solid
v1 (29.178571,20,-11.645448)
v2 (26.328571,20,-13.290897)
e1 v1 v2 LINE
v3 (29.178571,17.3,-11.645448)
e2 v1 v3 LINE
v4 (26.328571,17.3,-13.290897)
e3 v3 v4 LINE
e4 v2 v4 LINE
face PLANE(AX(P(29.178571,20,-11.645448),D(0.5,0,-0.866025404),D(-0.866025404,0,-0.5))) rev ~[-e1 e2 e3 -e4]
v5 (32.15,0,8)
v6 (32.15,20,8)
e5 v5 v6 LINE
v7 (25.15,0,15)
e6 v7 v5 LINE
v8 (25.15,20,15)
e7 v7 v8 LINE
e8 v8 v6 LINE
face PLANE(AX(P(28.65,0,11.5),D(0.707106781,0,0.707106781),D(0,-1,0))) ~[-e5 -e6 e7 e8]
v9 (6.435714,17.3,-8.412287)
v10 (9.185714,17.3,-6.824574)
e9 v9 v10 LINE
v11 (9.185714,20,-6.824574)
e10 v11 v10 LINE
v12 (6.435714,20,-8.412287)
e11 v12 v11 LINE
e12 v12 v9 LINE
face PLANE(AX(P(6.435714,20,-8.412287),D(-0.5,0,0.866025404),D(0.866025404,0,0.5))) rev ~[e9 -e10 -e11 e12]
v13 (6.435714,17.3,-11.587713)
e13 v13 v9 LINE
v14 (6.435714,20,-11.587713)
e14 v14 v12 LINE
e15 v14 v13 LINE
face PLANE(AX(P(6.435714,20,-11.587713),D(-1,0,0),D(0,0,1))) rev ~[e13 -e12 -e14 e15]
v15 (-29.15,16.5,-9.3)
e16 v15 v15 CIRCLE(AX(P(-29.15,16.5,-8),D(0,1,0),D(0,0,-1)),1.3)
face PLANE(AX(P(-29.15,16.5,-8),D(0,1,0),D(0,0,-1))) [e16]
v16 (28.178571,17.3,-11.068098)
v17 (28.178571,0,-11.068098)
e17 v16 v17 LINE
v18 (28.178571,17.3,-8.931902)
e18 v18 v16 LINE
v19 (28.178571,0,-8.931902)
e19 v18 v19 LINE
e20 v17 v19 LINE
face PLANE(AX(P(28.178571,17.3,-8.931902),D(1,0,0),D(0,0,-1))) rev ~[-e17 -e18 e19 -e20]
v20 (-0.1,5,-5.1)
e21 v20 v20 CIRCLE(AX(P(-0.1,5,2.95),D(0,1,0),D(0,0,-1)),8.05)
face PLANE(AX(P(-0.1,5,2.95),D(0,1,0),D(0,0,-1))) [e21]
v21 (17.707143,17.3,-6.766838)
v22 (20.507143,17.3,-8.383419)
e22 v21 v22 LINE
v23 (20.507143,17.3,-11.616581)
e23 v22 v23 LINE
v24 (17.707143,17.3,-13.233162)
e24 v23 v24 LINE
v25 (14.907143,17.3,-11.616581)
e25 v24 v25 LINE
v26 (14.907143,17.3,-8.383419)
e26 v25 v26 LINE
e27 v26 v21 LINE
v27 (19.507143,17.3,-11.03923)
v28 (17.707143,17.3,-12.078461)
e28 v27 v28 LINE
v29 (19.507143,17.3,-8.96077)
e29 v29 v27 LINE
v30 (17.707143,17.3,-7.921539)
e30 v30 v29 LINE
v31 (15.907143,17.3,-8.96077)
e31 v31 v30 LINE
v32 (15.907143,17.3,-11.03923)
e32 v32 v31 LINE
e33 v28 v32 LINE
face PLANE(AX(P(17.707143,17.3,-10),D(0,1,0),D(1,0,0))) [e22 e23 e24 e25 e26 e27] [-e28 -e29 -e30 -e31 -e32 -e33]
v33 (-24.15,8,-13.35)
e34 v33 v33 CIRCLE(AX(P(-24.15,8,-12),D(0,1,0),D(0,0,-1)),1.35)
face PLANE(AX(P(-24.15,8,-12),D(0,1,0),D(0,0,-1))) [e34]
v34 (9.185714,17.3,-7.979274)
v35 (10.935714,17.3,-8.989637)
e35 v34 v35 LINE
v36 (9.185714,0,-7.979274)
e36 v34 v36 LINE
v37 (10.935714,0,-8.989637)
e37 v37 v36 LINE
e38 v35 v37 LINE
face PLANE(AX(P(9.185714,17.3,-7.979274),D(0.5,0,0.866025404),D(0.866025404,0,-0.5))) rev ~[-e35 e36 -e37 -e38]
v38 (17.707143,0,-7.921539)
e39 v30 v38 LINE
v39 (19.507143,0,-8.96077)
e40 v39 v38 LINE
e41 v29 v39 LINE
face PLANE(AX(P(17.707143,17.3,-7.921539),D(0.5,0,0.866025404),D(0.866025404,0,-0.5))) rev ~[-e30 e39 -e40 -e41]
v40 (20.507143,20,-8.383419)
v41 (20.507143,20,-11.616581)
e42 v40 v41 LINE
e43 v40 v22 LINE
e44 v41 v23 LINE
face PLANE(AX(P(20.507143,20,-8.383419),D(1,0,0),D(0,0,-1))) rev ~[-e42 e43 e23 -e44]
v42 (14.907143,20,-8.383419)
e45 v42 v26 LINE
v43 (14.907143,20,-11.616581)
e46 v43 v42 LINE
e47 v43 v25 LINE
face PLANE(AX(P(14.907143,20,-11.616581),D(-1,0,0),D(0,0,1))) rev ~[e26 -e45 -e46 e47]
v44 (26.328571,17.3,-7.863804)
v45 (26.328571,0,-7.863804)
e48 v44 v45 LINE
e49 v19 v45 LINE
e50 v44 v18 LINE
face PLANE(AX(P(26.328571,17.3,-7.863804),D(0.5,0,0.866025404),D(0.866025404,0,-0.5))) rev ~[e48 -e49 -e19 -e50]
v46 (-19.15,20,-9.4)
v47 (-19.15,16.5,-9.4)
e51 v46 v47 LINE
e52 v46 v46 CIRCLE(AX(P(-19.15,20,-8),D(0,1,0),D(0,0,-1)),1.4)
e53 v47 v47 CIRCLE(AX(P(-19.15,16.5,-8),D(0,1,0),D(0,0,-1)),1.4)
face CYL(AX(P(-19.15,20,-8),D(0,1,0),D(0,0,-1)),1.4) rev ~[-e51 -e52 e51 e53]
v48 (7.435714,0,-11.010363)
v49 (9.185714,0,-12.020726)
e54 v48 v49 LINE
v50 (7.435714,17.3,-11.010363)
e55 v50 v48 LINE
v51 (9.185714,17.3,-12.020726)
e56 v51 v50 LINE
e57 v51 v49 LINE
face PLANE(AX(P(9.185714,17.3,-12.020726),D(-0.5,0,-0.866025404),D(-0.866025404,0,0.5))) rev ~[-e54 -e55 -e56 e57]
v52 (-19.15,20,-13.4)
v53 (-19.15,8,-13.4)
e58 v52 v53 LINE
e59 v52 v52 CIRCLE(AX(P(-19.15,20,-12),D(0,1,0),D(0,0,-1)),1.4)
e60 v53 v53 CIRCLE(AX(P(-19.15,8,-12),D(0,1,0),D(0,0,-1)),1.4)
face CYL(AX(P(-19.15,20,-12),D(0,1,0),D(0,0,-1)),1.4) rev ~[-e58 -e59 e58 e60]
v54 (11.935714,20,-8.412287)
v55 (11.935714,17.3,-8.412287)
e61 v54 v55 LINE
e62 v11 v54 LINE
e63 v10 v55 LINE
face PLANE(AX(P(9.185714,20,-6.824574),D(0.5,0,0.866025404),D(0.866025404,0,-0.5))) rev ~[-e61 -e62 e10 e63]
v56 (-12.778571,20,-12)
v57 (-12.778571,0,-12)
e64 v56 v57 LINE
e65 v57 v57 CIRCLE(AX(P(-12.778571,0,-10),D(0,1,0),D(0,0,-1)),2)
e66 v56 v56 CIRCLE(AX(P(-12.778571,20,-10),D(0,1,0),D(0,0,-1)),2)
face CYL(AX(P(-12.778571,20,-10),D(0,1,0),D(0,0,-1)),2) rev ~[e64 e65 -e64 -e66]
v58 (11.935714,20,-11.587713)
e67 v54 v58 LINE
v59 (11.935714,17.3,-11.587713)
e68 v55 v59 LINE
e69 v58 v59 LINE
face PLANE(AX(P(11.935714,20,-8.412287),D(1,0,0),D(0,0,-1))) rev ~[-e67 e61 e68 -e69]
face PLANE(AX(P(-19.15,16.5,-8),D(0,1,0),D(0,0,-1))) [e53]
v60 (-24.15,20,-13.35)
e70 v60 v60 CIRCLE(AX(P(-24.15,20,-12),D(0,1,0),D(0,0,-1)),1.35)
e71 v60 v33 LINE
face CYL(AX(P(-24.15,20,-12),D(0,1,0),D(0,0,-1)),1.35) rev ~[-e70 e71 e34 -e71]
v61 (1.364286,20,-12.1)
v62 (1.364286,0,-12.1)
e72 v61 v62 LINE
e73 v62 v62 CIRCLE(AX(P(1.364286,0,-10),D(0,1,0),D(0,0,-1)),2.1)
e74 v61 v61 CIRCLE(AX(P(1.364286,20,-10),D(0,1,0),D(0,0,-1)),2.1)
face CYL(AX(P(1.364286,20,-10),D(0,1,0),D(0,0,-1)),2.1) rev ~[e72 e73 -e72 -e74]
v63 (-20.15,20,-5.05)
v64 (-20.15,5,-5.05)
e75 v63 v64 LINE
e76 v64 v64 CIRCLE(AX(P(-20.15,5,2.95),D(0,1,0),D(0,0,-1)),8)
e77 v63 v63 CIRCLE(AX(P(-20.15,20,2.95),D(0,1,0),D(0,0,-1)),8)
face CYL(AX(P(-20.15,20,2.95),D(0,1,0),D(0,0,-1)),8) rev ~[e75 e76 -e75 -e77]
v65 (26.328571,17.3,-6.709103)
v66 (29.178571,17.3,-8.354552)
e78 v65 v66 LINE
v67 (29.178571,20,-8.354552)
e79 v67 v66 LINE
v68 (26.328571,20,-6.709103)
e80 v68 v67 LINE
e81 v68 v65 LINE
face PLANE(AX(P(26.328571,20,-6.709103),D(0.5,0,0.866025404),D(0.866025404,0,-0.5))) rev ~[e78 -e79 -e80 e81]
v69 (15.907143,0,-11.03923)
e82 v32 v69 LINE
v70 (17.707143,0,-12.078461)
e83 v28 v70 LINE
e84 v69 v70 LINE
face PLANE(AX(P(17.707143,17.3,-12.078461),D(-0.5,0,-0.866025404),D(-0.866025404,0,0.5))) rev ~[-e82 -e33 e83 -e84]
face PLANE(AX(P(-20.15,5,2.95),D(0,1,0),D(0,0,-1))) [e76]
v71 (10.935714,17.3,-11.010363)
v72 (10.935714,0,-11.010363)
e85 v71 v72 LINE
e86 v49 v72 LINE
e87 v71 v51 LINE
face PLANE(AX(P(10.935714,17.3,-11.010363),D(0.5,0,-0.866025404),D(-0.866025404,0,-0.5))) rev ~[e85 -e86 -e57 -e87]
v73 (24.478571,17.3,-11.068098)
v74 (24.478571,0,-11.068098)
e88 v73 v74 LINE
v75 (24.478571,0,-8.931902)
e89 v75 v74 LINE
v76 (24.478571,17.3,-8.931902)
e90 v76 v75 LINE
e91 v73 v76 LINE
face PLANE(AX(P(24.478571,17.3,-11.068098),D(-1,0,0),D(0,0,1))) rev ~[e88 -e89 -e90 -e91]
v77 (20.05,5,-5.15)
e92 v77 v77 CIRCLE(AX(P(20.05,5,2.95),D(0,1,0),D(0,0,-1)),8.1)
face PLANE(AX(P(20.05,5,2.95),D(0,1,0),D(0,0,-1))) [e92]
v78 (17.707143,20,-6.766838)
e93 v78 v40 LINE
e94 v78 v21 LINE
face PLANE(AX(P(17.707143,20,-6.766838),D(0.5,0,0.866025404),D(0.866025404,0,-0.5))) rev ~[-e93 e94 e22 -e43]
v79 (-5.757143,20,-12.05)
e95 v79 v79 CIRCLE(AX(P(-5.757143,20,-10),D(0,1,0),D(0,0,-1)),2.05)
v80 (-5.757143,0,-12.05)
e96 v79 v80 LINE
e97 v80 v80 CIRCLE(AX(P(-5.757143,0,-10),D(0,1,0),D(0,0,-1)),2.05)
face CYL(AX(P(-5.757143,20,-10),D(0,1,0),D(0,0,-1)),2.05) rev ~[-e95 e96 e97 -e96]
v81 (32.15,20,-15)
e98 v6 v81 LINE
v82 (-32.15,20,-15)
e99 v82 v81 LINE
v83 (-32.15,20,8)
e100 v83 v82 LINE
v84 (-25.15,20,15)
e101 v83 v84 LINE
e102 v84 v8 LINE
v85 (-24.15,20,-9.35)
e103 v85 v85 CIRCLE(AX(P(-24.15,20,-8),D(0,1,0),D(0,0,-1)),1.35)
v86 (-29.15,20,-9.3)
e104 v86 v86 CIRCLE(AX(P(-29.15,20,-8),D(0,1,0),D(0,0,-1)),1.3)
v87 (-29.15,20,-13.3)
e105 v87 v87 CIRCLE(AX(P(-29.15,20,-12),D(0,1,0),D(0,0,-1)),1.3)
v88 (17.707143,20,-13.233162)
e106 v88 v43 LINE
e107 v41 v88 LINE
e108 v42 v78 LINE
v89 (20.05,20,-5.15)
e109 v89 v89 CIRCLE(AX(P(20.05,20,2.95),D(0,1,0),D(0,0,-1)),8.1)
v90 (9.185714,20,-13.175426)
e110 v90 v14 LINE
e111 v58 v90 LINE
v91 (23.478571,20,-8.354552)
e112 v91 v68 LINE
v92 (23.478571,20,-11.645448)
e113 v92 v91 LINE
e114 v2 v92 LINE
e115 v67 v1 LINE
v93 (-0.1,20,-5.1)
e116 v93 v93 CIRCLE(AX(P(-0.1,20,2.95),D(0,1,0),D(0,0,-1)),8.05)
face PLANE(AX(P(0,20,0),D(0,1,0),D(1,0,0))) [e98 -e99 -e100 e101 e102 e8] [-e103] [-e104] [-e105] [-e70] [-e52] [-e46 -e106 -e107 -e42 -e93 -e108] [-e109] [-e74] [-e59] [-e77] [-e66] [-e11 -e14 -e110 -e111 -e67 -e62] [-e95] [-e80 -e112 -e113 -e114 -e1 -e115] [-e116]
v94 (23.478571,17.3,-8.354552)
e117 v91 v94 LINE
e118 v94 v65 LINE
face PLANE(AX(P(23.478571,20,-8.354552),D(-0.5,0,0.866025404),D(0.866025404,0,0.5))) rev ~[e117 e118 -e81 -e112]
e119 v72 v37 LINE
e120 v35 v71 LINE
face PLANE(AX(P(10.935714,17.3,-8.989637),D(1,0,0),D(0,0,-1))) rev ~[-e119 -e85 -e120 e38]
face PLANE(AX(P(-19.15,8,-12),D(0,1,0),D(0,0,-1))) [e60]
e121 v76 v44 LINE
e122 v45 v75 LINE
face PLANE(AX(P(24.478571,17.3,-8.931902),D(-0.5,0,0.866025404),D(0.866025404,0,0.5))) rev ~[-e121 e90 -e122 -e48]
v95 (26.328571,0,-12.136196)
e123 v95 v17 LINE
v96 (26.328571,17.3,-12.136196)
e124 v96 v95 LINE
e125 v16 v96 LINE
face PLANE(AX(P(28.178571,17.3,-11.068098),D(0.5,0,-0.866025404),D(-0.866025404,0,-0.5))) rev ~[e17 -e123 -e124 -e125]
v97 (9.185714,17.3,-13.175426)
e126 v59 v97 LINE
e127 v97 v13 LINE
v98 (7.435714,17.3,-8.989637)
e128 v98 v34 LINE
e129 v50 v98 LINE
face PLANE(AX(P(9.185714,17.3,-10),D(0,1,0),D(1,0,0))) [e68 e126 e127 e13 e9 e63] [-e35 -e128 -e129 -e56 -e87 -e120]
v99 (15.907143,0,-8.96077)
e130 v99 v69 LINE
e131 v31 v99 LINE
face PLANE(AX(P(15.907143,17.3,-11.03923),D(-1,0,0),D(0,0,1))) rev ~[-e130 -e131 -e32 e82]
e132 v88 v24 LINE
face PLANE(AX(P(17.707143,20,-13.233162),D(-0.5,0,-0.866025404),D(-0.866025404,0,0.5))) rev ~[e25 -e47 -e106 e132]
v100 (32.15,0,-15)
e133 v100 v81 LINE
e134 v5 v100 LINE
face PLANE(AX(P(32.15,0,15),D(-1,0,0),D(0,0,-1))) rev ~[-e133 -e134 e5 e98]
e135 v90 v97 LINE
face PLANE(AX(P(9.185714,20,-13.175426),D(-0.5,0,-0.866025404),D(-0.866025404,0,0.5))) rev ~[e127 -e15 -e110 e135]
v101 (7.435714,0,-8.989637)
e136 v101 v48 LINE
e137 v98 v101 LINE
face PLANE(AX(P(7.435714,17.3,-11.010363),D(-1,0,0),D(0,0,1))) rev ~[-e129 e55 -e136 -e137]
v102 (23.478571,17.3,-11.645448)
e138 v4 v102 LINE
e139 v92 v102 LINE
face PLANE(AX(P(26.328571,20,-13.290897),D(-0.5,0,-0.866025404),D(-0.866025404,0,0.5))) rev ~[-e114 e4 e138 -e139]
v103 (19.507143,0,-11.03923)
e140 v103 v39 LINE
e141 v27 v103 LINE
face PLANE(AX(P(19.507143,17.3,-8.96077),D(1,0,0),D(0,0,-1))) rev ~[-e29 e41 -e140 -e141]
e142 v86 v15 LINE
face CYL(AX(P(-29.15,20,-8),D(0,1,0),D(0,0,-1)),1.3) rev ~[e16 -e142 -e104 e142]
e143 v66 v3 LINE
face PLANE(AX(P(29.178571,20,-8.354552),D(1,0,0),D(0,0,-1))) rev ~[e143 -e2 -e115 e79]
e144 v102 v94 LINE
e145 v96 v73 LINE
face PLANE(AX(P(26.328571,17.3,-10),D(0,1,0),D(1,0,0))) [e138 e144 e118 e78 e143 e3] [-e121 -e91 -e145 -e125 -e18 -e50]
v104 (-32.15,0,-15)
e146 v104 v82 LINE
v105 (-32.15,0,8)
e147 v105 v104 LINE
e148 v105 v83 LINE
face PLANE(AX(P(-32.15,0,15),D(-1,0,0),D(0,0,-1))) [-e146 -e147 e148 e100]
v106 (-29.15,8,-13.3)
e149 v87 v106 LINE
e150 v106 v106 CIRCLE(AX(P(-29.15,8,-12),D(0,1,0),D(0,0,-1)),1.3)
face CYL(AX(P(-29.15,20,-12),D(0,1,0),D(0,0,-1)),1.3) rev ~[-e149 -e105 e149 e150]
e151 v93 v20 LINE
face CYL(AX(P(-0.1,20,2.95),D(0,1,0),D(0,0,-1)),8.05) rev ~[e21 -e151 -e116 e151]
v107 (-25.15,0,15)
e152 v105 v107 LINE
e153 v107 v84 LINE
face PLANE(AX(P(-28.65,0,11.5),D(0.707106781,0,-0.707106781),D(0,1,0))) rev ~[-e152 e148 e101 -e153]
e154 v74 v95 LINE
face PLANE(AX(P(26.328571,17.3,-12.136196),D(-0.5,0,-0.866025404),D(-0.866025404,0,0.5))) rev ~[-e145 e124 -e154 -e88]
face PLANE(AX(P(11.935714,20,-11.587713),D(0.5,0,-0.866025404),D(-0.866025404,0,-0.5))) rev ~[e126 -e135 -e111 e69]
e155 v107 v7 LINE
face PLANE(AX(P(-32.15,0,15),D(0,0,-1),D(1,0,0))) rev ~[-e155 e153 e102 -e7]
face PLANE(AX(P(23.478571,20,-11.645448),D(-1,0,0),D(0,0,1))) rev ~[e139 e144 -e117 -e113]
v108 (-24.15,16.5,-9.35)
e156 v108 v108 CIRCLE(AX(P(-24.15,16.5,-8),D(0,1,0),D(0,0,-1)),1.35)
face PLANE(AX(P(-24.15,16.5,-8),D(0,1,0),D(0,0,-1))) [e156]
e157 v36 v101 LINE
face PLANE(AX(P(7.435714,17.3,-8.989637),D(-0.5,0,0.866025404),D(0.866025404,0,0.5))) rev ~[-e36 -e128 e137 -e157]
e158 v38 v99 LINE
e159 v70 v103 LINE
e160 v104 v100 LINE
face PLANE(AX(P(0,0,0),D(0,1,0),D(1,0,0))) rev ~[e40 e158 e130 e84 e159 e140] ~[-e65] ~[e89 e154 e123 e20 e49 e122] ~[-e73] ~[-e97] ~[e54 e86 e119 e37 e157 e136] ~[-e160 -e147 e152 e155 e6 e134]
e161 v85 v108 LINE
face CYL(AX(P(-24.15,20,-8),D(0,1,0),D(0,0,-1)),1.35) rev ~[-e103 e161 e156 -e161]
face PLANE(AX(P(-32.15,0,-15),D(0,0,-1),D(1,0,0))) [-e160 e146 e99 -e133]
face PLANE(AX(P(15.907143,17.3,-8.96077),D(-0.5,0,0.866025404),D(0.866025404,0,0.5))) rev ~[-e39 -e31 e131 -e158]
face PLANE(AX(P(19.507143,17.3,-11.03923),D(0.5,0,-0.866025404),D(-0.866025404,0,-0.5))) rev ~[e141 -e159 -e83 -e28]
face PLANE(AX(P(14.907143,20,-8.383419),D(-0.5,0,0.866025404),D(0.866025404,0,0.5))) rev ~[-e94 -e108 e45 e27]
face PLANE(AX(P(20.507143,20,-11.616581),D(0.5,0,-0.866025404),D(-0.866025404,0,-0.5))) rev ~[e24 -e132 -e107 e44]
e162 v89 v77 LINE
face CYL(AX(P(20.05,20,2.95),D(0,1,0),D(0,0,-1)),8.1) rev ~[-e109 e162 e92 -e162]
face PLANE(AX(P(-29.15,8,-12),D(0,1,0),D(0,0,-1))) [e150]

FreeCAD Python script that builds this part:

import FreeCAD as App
import Part
import Sketcher
from FreeCAD import Vector
Q = App.Units.Quantity


def edges_at(feature, points):
    """Names of the edges that pass closest to the given points."""
    edges = feature.Shape.Edges
    near = lambda p: min(range(len(edges)), key=lambda i: edges[i].distToShape(Part.Vertex(*p))[0])
    return sorted({f"Edge{near(p) + 1}" for p in points})

doc = App.newDocument("Part")
params = doc.addObject("Spreadsheet::Sheet", "Params")
for row, (alias, value) in enumerate([
    ("sketch1_height", "30 mm"),
    ("sketch1_width", "64.3 mm"),
    ("pad1_length", "20 mm"),
    ("sketch2_diameter", "16 mm"),
    ("sketch2_diameter2", "16.1 mm"),
    ("sketch2_diameter3", "16.2 mm"),
    ("pocket1_length", "15 mm"),
    ("sketch3_diameter", "2.7 mm"),
    ("sketch3_diameter2", "2.8 mm"),
    ("sketch3_diameter3", "2.6 mm"),
    ("pocket2_length", "12 mm"),
    ("pocket3_length", "2.7 mm"),
    ("sketch5_diameter", "4 mm"),
    ("sketch5_diameter2", "4.1 mm"),
    ("sketch5_diameter3", "4.2 mm"),
    ("pocket4_length", "20 mm"),
    ("chamfer_size", "7 mm"),
    ("sketch9_diameter", "2.7 mm"),
    ("sketch9_diameter2", "2.6 mm"),
    ("sketch9_diameter3", "2.8 mm"),
    ("pocket8_length", "3.5 mm"),
], start=1):
    params.set(f"A{row}", alias)
    params.set(f"B{row}", "=" + value)
    params.setAlias(f"B{row}", alias)

body = doc.addObject("PartDesign::Body", "Body")

# Sketch on XZ plane
sketch1 = doc.addObject("Sketcher::SketchObject", "Sketch")
body.addObject(sketch1)
sketch1.AttachmentSupport = (doc.XZ_Plane, [""])
sketch1.MapMode = "FlatFace"
sketch1.addGeometry(Part.LineSegment(Vector(-32, -15, 0), Vector(-32, 15, 0)), False)
sketch1.addGeometry(Part.LineSegment(Vector(-32, 15, 0), Vector(32, 15, 0)), False)
sketch1.addGeometry(Part.LineSegment(Vector(32, 15, 0), Vector(32, -15, 0)), False)
sketch1.addGeometry(Part.LineSegment(Vector(32, -15, 0), Vector(-32, -15, 0)), False)
sketch1.addConstraint(Sketcher.Constraint("Coincident", 0, 2, 1, 1))
sketch1.addConstraint(Sketcher.Constraint("Coincident", 1, 2, 2, 1))
sketch1.addConstraint(Sketcher.Constraint("Coincident", 2, 2, 3, 1))
sketch1.addConstraint(Sketcher.Constraint("Coincident", 3, 2, 0, 1))
sketch1.addConstraint(Sketcher.Constraint("Vertical", 0))
sketch1.addConstraint(Sketcher.Constraint("Horizontal", 1))
sketch1.addConstraint(Sketcher.Constraint("Vertical", 2))
sketch1.addConstraint(Sketcher.Constraint("Horizontal", 3))
sketch1.addConstraint(Sketcher.Constraint("Symmetric", 0, 2, 2, 2, -1, 1))
sketch1.addConstraint(Sketcher.Constraint("DistanceY", 0, 1, 0, 2, Q("30 mm")))
sketch1.addConstraint(Sketcher.Constraint("DistanceX", 1, 1, 1, 2, Q("64.3 mm")))
sketch1.setExpression("Constraints[9]", "Params.sketch1_height")
sketch1.setExpression("Constraints[10]", "Params.sketch1_width")
pad1 = doc.addObject("PartDesign::Pad", "Pad")
body.addObject(pad1)
pad1.Profile = sketch1
pad1.setExpression("Length", "Params.pad1_length")
pad1.Reversed = True

# Sketch on XZ plane
sketch2 = doc.addObject("Sketcher::SketchObject", "Sketch001")
body.addObject(sketch2)
sketch2.AttachmentSupport = (doc.XZ_Plane, [""])
sketch2.MapMode = "FlatFace"
sketch2.AttachmentOffset = App.Placement(Vector(0, 0, -20), App.Rotation())
sketch2.addGeometry(Part.Circle(Vector(0, 3, 0), Vector(0, 0, 1), 8), False)
sketch2.addGeometry(Part.Circle(Vector(20, 3, 0), Vector(0, 0, 1), 8), False)
sketch2.addGeometry(Part.Circle(Vector(-20, 3, 0), Vector(0, 0, 1), 8), False)
sketch2.addConstraint(Sketcher.Constraint("Horizontal", 0, 3, 1, 3))
sketch2.addConstraint(Sketcher.Constraint("Horizontal", 1, 3, 2, 3))
sketch2.addConstraint(Sketcher.Constraint("Diameter", 2, Q("16 mm")))
sketch2.addConstraint(Sketcher.Constraint("Diameter", 0, Q("16.1 mm")))
sketch2.addConstraint(Sketcher.Constraint("Diameter", 1, Q("16.2 mm")))
sketch2.addConstraint(Sketcher.Constraint("DistanceX", 0, 3, -1, 1, Q("0.1 mm")))
sketch2.addConstraint(Sketcher.Constraint("DistanceX", 2, 3, 1, 3, Q("40.2 mm")))
sketch2.addConstraint(Sketcher.Constraint("DistanceY", -1, 1, 0, 3, Q("2.95 mm")))
sketch2.addConstraint(Sketcher.Constraint("DistanceX", -1, 1, 1, 3, Q("20.05 mm")))
sketch2.setExpression("Constraints[2]", "Params.sketch2_diameter")
sketch2.setExpression("Constraints[3]", "Params.sketch2_diameter2")
sketch2.setExpression("Constraints[4]", "Params.sketch2_diameter3")
pocket1 = doc.addObject("PartDesign::Pocket", "Pocket")
body.addObject(pocket1)
pocket1.Profile = sketch2
pocket1.setExpression("Length", "Params.pocket1_length")
pocket1.Reversed = True

# Sketch on XZ plane
sketch3 = doc.addObject("Sketcher::SketchObject", "Sketch002")
body.addObject(sketch3)
sketch3.AttachmentSupport = (doc.XZ_Plane, [""])
sketch3.MapMode = "FlatFace"
sketch3.AttachmentOffset = App.Placement(Vector(0, 0, -20), App.Rotation())
sketch3.addGeometry(Part.Circle(Vector(-24.1, -12, 0), Vector(0, 0, 1), 1.4), False)
sketch3.addGeometry(Part.Circle(Vector(-19.1, -12, 0), Vector(0, 0, 1), 1.4), False)
sketch3.addGeometry(Part.Circle(Vector(-29.1, -12, 0), Vector(0, 0, 1), 1.3), False)
sketch3.addConstraint(Sketcher.Constraint("Horizontal", 0, 3, 1, 3))
sketch3.addConstraint(Sketcher.Constraint("Horizontal", 1, 3, 2, 3))
sketch3.addConstraint(Sketcher.Constraint("Diameter", 0, Q("2.7 mm")))
sketch3.addConstraint(Sketcher.Constraint("Diameter", 1, Q("2.8 mm")))
sketch3.addConstraint(Sketcher.Constraint("Diameter", 2, Q("2.6 mm")))
sketch3.addConstraint(Sketcher.Constraint("DistanceY", 0, 3, -1, 1, Q("12 mm")))
sketch3.addConstraint(Sketcher.Constraint("DistanceX", 0, 3, 1, 3, Q("5 mm")))
sketch3.addConstraint(Sketcher.Constraint("DistanceX", 2, 3, 0, 3, Q("5 mm")))
sketch3.addConstraint(Sketcher.Constraint("DistanceX", 0, 3, -1, 1, Q("24.15 mm")))
sketch3.setExpression("Constraints[2]", "Params.sketch3_diameter")
sketch3.setExpression("Constraints[3]", "Params.sketch3_diameter2")
sketch3.setExpression("Constraints[4]", "Params.sketch3_diameter3")
pocket2 = doc.addObject("PartDesign::Pocket", "Pocket001")
body.addObject(pocket2)
pocket2.Profile = sketch3
pocket2.setExpression("Length", "Params.pocket2_length")
pocket2.Reversed = True

# Sketch on XZ plane
sketch4 = doc.addObject("Sketcher::SketchObject", "Sketch003")
body.addObject(sketch4)
sketch4.AttachmentSupport = (doc.XZ_Plane, [""])
sketch4.MapMode = "FlatFace"
sketch4.AttachmentOffset = App.Placement(Vector(0, 0, -20), App.Rotation())
sketch4.addGeometry(Part.LineSegment(Vector(9.2, -6.8, 0), Vector(11.9, -8.4, 0)), False)
sketch4.addGeometry(Part.LineSegment(Vector(11.9, -8.4, 0), Vector(11.9, -11.6, 0)), False)
sketch4.addGeometry(Part.LineSegment(Vector(11.9, -11.6, 0), Vector(9.2, -13.2, 0)), False)
sketch4.addGeometry(Part.LineSegment(Vector(9.2, -13.2, 0), Vector(6.4, -11.6, 0)), False)
sketch4.addGeometry(Part.LineSegment(Vector(6.4, -11.6, 0), Vector(6.4, -8.4, 0)), False)
sketch4.addGeometry(Part.LineSegment(Vector(6.4, -8.4, 0), Vector(9.2, -6.8, 0)), False)
sketch4.addGeometry(Part.LineSegment(Vector(17.7, -6.8, 0), Vector(20.5, -8.4, 0)), False)
sketch4.addGeometry(Part.LineSegment(Vector(20.5, -8.4, 0), Vector(20.5, -11.6, 0)), False)
sketch4.addGeometry(Part.LineSegment(Vector(20.5, -11.6, 0), Vector(17.7, -13.2, 0)), False)
sketch4.addGeometry(Part.LineSegment(Vector(17.7, -13.2, 0), Vector(14.9, -11.6, 0)), False)
sketch4.addGeometry(Part.LineSegment(Vector(14.9, -11.6, 0), Vector(14.9, -8.4, 0)), False)
sketch4.addGeometry(Part.LineSegment(Vector(14.9, -8.4, 0), Vector(17.7, -6.8, 0)), False)
sketch4.addGeometry(Part.LineSegment(Vector(26.3, -6.7, 0), Vector(29.2, -8.4, 0)), False)
sketch4.addGeometry(Part.LineSegment(Vector(29.2, -8.4, 0), Vector(29.2, -11.6, 0)), False)
sketch4.addGeometry(Part.LineSegment(Vector(29.2, -11.6, 0), Vector(26.3, -13.3, 0)), False)
sketch4.addGeometry(Part.LineSegment(Vector(26.3, -13.3, 0), Vector(23.5, -11.6, 0)), False)
sketch4.addGeometry(Part.LineSegment(Vector(23.5, -11.6, 0), Vector(23.5, -8.4, 0)), False)
sketch4.addGeometry(Part.LineSegment(Vector(23.5, -8.4, 0), Vector(26.3, -6.7, 0)), False)
sketch4.addConstraint(Sketcher.Constraint("Coincident", 0, 2, 1, 1))
sketch4.addConstraint(Sketcher.Constraint("Coincident", 1, 2, 2, 1))
sketch4.addConstraint(Sketcher.Constraint("Coincident", 2, 2, 3, 1))
sketch4.addConstraint(Sketcher.Constraint("Coincident", 3, 2, 4, 1))
sketch4.addConstraint(Sketcher.Constraint("Coincident", 4, 2, 5, 1))
sketch4.addConstraint(Sketcher.Constraint("Coincident", 5, 2, 0, 1))
sketch4.addConstraint(Sketcher.Constraint("Coincident", 6, 2, 7, 1))
sketch4.addConstraint(Sketcher.Constraint("Coincident", 7, 2, 8, 1))
sketch4.addConstraint(Sketcher.Constraint("Coincident", 8, 2, 9, 1))
sketch4.addConstraint(Sketcher.Constraint("Coincident", 9, 2, 10, 1))
sketch4.addConstraint(Sketcher.Constraint("Coincident", 10, 2, 11, 1))
sketch4.addConstraint(Sketcher.Constraint("Coincident", 11, 2, 6, 1))
sketch4.addConstraint(Sketcher.Constraint("Coincident", 12, 2, 13, 1))
sketch4.addConstraint(Sketcher.Constraint("Coincident", 13, 2, 14, 1))
sketch4.addConstraint(Sketcher.Constraint("Coincident", 14, 2, 15, 1))
sketch4.addConstraint(Sketcher.Constraint("Coincident", 15, 2, 16, 1))
sketch4.addConstraint(Sketcher.Constraint("Coincident", 16, 2, 17, 1))
sketch4.addConstraint(Sketcher.Constraint("Coincident", 17, 2, 12, 1))
sketch4.addConstraint(Sketcher.Constraint("Vertical", 1))
sketch4.addConstraint(Sketcher.Constraint("Vertical", 4))
sketch4.addConstraint(Sketcher.Constraint("Vertical", 7))
sketch4.addConstraint(Sketcher.Constraint("Vertical", 10))
sketch4.addConstraint(Sketcher.Constraint("Vertical", 13))
sketch4.addConstraint(Sketcher.Constraint("Vertical", 16))
sketch4.addConstraint(Sketcher.Constraint("Parallel", 0, 3))
sketch4.addConstraint(Sketcher.Constraint("Parallel", 2, 5))
sketch4.addConstraint(Sketcher.Constraint("Parallel", 3, 6))
sketch4.addConstraint(Sketcher.Constraint("Parallel", 5, 8))
sketch4.addConstraint(Sketcher.Constraint("Parallel", 6, 9))
sketch4.addConstraint(Sketcher.Constraint("Parallel", 8, 11))
sketch4.addConstraint(Sketcher.Constraint("Parallel", 9, 12))
sketch4.addConstraint(Sketcher.Constraint("Parallel", 11, 14))
sketch4.addConstraint(Sketcher.Constraint("Parallel", 12, 15))
sketch4.addConstraint(Sketcher.Constraint("Parallel", 14, 17))
sketch4.addConstraint(Sketcher.Constraint("Horizontal", 1, 2, 3, 2))
sketch4.addConstraint(Sketcher.Constraint("Horizontal", 0, 2, 4, 2))
sketch4.addConstraint(Sketcher.Constraint("Horizontal", 7, 2, 9, 2))
sketch4.addConstraint(Sketcher.Constraint("Horizontal", 6, 2, 10, 2))
sketch4.addConstraint(Sketcher.Constraint("Horizontal", 13, 2, 15, 2))
sketch4.addConstraint(Sketcher.Constraint("Horizontal", 12, 2, 16, 2))
sketch4.addConstraint(Sketcher.Constraint("Vertical", 2, 2, 5, 2))
sketch4.addConstraint(Sketcher.Constraint("Angle", 0, Q("-30 deg")))
sketch4.addConstraint(Sketcher.Constraint("DistanceX", 3, 2, 1, 2, Q("5.5 mm")))
sketch4.addConstraint(Sketcher.Constraint("DistanceX", 8, 2, 7, 2, Q("2.8 mm")))
sketch4.addConstraint(Sketcher.Constraint("DistanceX", 15, 2, 13, 2, Q("5.7 mm")))
sketch4.addConstraint(Sketcher.Constraint("DistanceY", 7, 2, 7, 1, Q("3.233162 mm")))
sketch4.addConstraint(Sketcher.Constraint("DistanceY", 1, 2, 1, 1, Q("3.175426 mm")))
sketch4.addConstraint(Sketcher.Constraint("DistanceY", 13, 2, 13, 1, Q("3.290897 mm")))
sketch4.addConstraint(Sketcher.Constraint("DistanceY", 6, 2, -1, 1, Q("8.383419 mm")))
sketch4.addConstraint(Sketcher.Constraint("DistanceX", -1, 1, 12, 2, Q("29.178571 mm")))
sketch4.addConstraint(Sketcher.Constraint("DistanceY", 12, 2, -1, 1, Q("8.354552 mm")))
sketch4.addConstraint(Sketcher.Constraint("DistanceX", 0, 2, 6, 2, Q("8.571429 mm")))
sketch4.addConstraint(Sketcher.Constraint("DistanceY", 8, 2, 1, 2, Q("1.645448 mm")))
sketch4.addConstraint(Sketcher.Constraint("DistanceX", 6, 2, 12, 2, Q("8.671429 mm")))
pocket3 = doc.addObject("PartDesign::Pocket", "Pocket002")
body.addObject(pocket3)
pocket3.Profile = sketch4
pocket3.setExpression("Length", "Params.pocket3_length")
pocket3.Reversed = True

# Sketch on XZ plane
sketch5 = doc.addObject("Sketcher::SketchObject", "Sketch004")
body.addObject(sketch5)
sketch5.AttachmentSupport = (doc.XZ_Plane, [""])
sketch5.MapMode = "FlatFace"
sketch5.AttachmentOffset = App.Placement(Vector(0, 0, -20), App.Rotation())
sketch5.addGeometry(Part.Circle(Vector(-12.8, -10, 0), Vector(0, 0, 1), 2), False)
sketch5.addGeometry(Part.Circle(Vector(-5.8, -10, 0), Vector(0, 0, 1), 2), False)
sketch5.addGeometry(Part.Circle(Vector(1.4, -10, 0), Vector(0, 0, 1), 2.1), False)
sketch5.addConstraint(Sketcher.Constraint("Horizontal", 0, 3, 1, 3))
sketch5.addConstraint(Sketcher.Constraint("Horizontal", 1, 3, 2, 3))
sketch5.addConstraint(Sketcher.Constraint("Diameter", 0, Q("4 mm")))
sketch5.addConstraint(Sketcher.Constraint("Diameter", 1, Q("4.1 mm")))
sketch5.addConstraint(Sketcher.Constraint("Diameter", 2, Q("4.2 mm")))
sketch5.addConstraint(Sketcher.Constraint("DistanceY", 0, 3, -1, 1, Q("10 mm")))
sketch5.addConstraint(Sketcher.Constraint("DistanceX", 0, 3, -1, 1, Q("12.778571 mm")))
sketch5.addConstraint(Sketcher.Constraint("DistanceX", 0, 3, 1, 3, Q("7.021429 mm")))
sketch5.addConstraint(Sketcher.Constraint("DistanceX", 1, 3, 2, 3, Q("7.121429 mm")))
sketch5.setExpression("Constraints[2]", "Params.sketch5_diameter")
sketch5.setExpression("Constraints[3]", "Params.sketch5_diameter2")
sketch5.setExpression("Constraints[4]", "Params.sketch5_diameter3")
pocket4 = doc.addObject("PartDesign::Pocket", "Pocket003")
body.addObject(pocket4)
pocket4.Profile = sketch5
pocket4.setExpression("Length", "Params.pocket4_length")
pocket4.Reversed = True
doc.recompute()

chamfer = doc.addObject("PartDesign::Chamfer", "Chamfer")
body.addObject(chamfer)
chamfer.Base = (pocket4, edges_at(pocket4, [(-32.15, 10, 15), (32.15, 10, 15)]))
chamfer.setExpression("Size", "Params.chamfer_size")

# Sketch on XZ plane
sketch6 = doc.addObject("Sketcher::SketchObject", "Sketch005")
body.addObject(sketch6)
sketch6.AttachmentSupport = (doc.XZ_Plane, [""])
sketch6.MapMode = "FlatFace"
sketch6.AttachmentOffset = App.Placement(Vector(0, 0, -17.3), App.Rotation())
sketch6.addGeometry(Part.LineSegment(Vector(24.5, -11.1, 0), Vector(24.5, -8.9, 0)), False)
sketch6.addGeometry(Part.LineSegment(Vector(24.5, -8.9, 0), Vector(26.3, -7.9, 0)), False)
sketch6.addGeometry(Part.LineSegment(Vector(26.3, -7.9, 0), Vector(28.2, -8.9, 0)), False)
sketch6.addGeometry(Part.LineSegment(Vector(28.2, -8.9, 0), Vector(28.2, -11.1, 0)), False)
sketch6.addGeometry(Part.LineSegment(Vector(28.2, -11.1, 0), Vector(26.3, -12.1, 0)), False)
sketch6.addGeometry(Part.LineSegment(Vector(26.3, -12.1, 0), Vector(24.5, -11.1, 0)), False)
sketch6.addConstraint(Sketcher.Constraint("Coincident", 0, 2, 1, 1))
sketch6.addConstraint(Sketcher.Constraint("Coincident", 1, 2, 2, 1))
sketch6.addConstraint(Sketcher.Constraint("Coincident", 2, 2, 3, 1))
sketch6.addConstraint(Sketcher.Constraint("Coincident", 3, 2, 4, 1))
sketch6.addConstraint(Sketcher.Constraint("Coincident", 4, 2, 5, 1))
sketch6.addConstraint(Sketcher.Constraint("Coincident", 5, 2, 0, 1))
sketch6.addConstraint(Sketcher.Constraint("Vertical", 0))
sketch6.addConstraint(Sketcher.Constraint("Vertical", 3))
sketch6.addConstraint(Sketcher.Constraint("Parallel", 1, 4))
sketch6.addConstraint(Sketcher.Constraint("Parallel", 2, 5))
sketch6.addConstraint(Sketcher.Constraint("Horizontal", 0, 2, 2, 2))
sketch6.addConstraint(Sketcher.Constraint("Horizontal", 3, 2, 5, 2))
sketch6.addConstraint(Sketcher.Constraint("Vertical", 1, 2, 4, 2))
sketch6.addConstraint(Sketcher.Constraint("Angle", 1, Q("30 deg")))
sketch6.addConstraint(Sketcher.Constraint("DistanceX", 0, 2, 2, 2, Q("3.7 mm")))
sketch6.addConstraint(Sketcher.Constraint("DistanceY", 0, 1, 0, 2, Q("2.136196 mm")))
sketch6.addConstraint(Sketcher.Constraint("DistanceX", -1, 1, 0, 2, Q("24.478571 mm")))
sketch6.addConstraint(Sketcher.Constraint("DistanceY", 0, 2, -1, 1, Q("8.931902 mm")))
pocket5 = doc.addObject("PartDesign::Pocket", "Pocket004")
body.addObject(pocket5)
pocket5.Profile = sketch6
pocket5.Type = "UpToFirst"
pocket5.Reversed = True

# Sketch on XZ plane
sketch7 = doc.addObject("Sketcher::SketchObject", "Sketch006")
body.addObject(sketch7)
sketch7.AttachmentSupport = (doc.XZ_Plane, [""])
sketch7.MapMode = "FlatFace"
sketch7.AttachmentOffset = App.Placement(Vector(0, 0, -17.3), App.Rotation())
sketch7.addGeometry(Part.LineSegment(Vector(15.9, -11, 0), Vector(15.9, -9, 0)), False)
sketch7.addGeometry(Part.LineSegment(Vector(15.9, -9, 0), Vector(17.7, -7.9, 0)), False)
sketch7.addGeometry(Part.LineSegment(Vector(17.7, -7.9, 0), Vector(19.5, -9, 0)), False)
sketch7.addGeometry(Part.LineSegment(Vector(19.5, -9, 0), Vector(19.5, -11, 0)), False)
sketch7.addGeometry(Part.LineSegment(Vector(19.5, -11, 0), Vector(17.7, -12.1, 0)), False)
sketch7.addGeometry(Part.LineSegment(Vector(17.7, -12.1, 0), Vector(15.9, -11, 0)), False)
sketch7.addConstraint(Sketcher.Constraint("Coincident", 0, 2, 1, 1))
sketch7.addConstraint(Sketcher.Constraint("Coincident", 1, 2, 2, 1))
sketch7.addConstraint(Sketcher.Constraint("Coincident", 2, 2, 3, 1))
sketch7.addConstraint(Sketcher.Constraint("Coincident", 3, 2, 4, 1))
sketch7.addConstraint(Sketcher.Constraint("Coincident", 4, 2, 5, 1))
sketch7.addConstraint(Sketcher.Constraint("Coincident", 5, 2, 0, 1))
sketch7.addConstraint(Sketcher.Constraint("Vertical", 0))
sketch7.addConstraint(Sketcher.Constraint("Vertical", 3))
sketch7.addConstraint(Sketcher.Constraint("Parallel", 1, 4))
sketch7.addConstraint(Sketcher.Constraint("Parallel", 2, 5))
sketch7.addConstraint(Sketcher.Constraint("Horizontal", 0, 2, 2, 2))
sketch7.addConstraint(Sketcher.Constraint("Horizontal", 3, 2, 5, 2))
sketch7.addConstraint(Sketcher.Constraint("Vertical", 1, 2, 4, 2))
sketch7.addConstraint(Sketcher.Constraint("Angle", 1, Q("30 deg")))
sketch7.addConstraint(Sketcher.Constraint("DistanceX", 0, 2, 1, 2, Q("1.8 mm")))
sketch7.addConstraint(Sketcher.Constraint("DistanceY", 0, 1, 0, 2, Q("2.078461 mm")))
sketch7.addConstraint(Sketcher.Constraint("DistanceY", 0, 2, -1, 1, Q("8.96077 mm")))
sketch7.addConstraint(Sketcher.Constraint("DistanceX", -1, 1, 0, 2, Q("15.907143 mm")))
pocket6 = doc.addObject("PartDesign::Pocket", "Pocket005")
body.addObject(pocket6)
pocket6.Profile = sketch7
pocket6.Type = "UpToFirst"
pocket6.Reversed = True

# Sketch on XZ plane
sketch8 = doc.addObject("Sketcher::SketchObject", "Sketch007")
body.addObject(sketch8)
sketch8.AttachmentSupport = (doc.XZ_Plane, [""])
sketch8.MapMode = "FlatFace"
sketch8.AttachmentOffset = App.Placement(Vector(0, 0, -17.3), App.Rotation())
sketch8.addGeometry(Part.LineSegment(Vector(10.9, -11, 0), Vector(9.2, -12, 0)), False)
sketch8.addGeometry(Part.LineSegment(Vector(9.2, -12, 0), Vector(7.4, -11, 0)), False)
sketch8.addGeometry(Part.LineSegment(Vector(7.4, -11, 0), Vector(7.4, -9, 0)), False)
sketch8.addGeometry(Part.LineSegment(Vector(7.4, -9, 0), Vector(9.2, -8, 0)), False)
sketch8.addGeometry(Part.LineSegment(Vector(9.2, -8, 0), Vector(10.9, -9, 0)), False)
sketch8.addGeometry(Part.LineSegment(Vector(10.9, -9, 0), Vector(10.9, -11, 0)), False)
sketch8.addConstraint(Sketcher.Constraint("Coincident", 0, 2, 1, 1))
sketch8.addConstraint(Sketcher.Constraint("Coincident", 1, 2, 2, 1))
sketch8.addConstraint(Sketcher.Constraint("Coincident", 2, 2, 3, 1))
sketch8.addConstraint(Sketcher.Constraint("Coincident", 3, 2, 4, 1))
sketch8.addConstraint(Sketcher.Constraint("Coincident", 4, 2, 5, 1))
sketch8.addConstraint(Sketcher.Constraint("Coincident", 5, 2, 0, 1))
sketch8.addConstraint(Sketcher.Constraint("Vertical", 2))
sketch8.addConstraint(Sketcher.Constraint("Vertical", 5))
sketch8.addConstraint(Sketcher.Constraint("Parallel", 0, 3))
sketch8.addConstraint(Sketcher.Constraint("Parallel", 1, 4))
sketch8.addConstraint(Sketcher.Constraint("Horizontal", 2, 2, 4, 2))
sketch8.addConstraint(Sketcher.Constraint("Horizontal", 1, 2, 5, 2))
sketch8.addConstraint(Sketcher.Constraint("Vertical", 0, 2, 3, 2))
sketch8.addConstraint(Sketcher.Constraint("Angle", 0, Q("-150 deg")))
sketch8.addConstraint(Sketcher.Constraint("DistanceX", 2, 2, 4, 2, Q("3.5 mm")))
sketch8.addConstraint(Sketcher.Constraint("DistanceY", 2, 1, 2, 2, Q("2.020726 mm")))
sketch8.addConstraint(Sketcher.Constraint("DistanceX", -1, 1, 0, 2, Q("9.185714 mm")))
sketch8.addConstraint(Sketcher.Constraint("DistanceY", 0, 2, -1, 1, Q("12.020726 mm")))
pocket7 = doc.addObject("PartDesign::Pocket", "Pocket006")
body.addObject(pocket7)
pocket7.Profile = sketch8
pocket7.Type = "UpToFirst"
pocket7.Reversed = True

# Sketch on XZ plane
sketch9 = doc.addObject("Sketcher::SketchObject", "Sketch008")
body.addObject(sketch9)
sketch9.AttachmentSupport = (doc.XZ_Plane, [""])
sketch9.MapMode = "FlatFace"
sketch9.AttachmentOffset = App.Placement(Vector(0, 0, -20), App.Rotation())
sketch9.addGeometry(Part.Circle(Vector(-24.1, -8, 0), Vector(0, 0, 1), 1.4), False)
sketch9.addGeometry(Part.Circle(Vector(-29.1, -8, 0), Vector(0, 0, 1), 1.3), False)
sketch9.addGeometry(Part.Circle(Vector(-19.1, -8, 0), Vector(0, 0, 1), 1.4), False)
sketch9.addConstraint(Sketcher.Constraint("Horizontal", 0, 3, 1, 3))
sketch9.addConstraint(Sketcher.Constraint("Horizontal", 1, 3, 2, 3))
sketch9.addConstraint(Sketcher.Constraint("Diameter", 0, Q("2.7 mm")))
sketch9.addConstraint(Sketcher.Constraint("Diameter", 1, Q("2.6 mm")))
sketch9.addConstraint(Sketcher.Constraint("Diameter", 2, Q("2.8 mm")))
sketch9.addConstraint(Sketcher.Constraint("DistanceY", 0, 3, -1, 1, Q("8 mm")))
sketch9.addConstraint(Sketcher.Constraint("DistanceX", 1, 3, 0, 3, Q("5 mm")))
sketch9.addConstraint(Sketcher.Constraint("DistanceX", 0, 3, 2, 3, Q("5 mm")))
sketch9.addConstraint(Sketcher.Constraint("DistanceX", 0, 3, -1, 1, Q("24.15 mm")))
sketch9.setExpression("Constraints[2]", "Params.sketch9_diameter")
sketch9.setExpression("Constraints[3]", "Params.sketch9_diameter2")
sketch9.setExpression("Constraints[4]", "Params.sketch9_diameter3")
pocket8 = doc.addObject("PartDesign::Pocket", "Pocket007")
body.addObject(pocket8)
pocket8.Profile = sketch9
pocket8.setExpression("Length", "Params.pocket8_length")
pocket8.Reversed = True

doc.recompute()
